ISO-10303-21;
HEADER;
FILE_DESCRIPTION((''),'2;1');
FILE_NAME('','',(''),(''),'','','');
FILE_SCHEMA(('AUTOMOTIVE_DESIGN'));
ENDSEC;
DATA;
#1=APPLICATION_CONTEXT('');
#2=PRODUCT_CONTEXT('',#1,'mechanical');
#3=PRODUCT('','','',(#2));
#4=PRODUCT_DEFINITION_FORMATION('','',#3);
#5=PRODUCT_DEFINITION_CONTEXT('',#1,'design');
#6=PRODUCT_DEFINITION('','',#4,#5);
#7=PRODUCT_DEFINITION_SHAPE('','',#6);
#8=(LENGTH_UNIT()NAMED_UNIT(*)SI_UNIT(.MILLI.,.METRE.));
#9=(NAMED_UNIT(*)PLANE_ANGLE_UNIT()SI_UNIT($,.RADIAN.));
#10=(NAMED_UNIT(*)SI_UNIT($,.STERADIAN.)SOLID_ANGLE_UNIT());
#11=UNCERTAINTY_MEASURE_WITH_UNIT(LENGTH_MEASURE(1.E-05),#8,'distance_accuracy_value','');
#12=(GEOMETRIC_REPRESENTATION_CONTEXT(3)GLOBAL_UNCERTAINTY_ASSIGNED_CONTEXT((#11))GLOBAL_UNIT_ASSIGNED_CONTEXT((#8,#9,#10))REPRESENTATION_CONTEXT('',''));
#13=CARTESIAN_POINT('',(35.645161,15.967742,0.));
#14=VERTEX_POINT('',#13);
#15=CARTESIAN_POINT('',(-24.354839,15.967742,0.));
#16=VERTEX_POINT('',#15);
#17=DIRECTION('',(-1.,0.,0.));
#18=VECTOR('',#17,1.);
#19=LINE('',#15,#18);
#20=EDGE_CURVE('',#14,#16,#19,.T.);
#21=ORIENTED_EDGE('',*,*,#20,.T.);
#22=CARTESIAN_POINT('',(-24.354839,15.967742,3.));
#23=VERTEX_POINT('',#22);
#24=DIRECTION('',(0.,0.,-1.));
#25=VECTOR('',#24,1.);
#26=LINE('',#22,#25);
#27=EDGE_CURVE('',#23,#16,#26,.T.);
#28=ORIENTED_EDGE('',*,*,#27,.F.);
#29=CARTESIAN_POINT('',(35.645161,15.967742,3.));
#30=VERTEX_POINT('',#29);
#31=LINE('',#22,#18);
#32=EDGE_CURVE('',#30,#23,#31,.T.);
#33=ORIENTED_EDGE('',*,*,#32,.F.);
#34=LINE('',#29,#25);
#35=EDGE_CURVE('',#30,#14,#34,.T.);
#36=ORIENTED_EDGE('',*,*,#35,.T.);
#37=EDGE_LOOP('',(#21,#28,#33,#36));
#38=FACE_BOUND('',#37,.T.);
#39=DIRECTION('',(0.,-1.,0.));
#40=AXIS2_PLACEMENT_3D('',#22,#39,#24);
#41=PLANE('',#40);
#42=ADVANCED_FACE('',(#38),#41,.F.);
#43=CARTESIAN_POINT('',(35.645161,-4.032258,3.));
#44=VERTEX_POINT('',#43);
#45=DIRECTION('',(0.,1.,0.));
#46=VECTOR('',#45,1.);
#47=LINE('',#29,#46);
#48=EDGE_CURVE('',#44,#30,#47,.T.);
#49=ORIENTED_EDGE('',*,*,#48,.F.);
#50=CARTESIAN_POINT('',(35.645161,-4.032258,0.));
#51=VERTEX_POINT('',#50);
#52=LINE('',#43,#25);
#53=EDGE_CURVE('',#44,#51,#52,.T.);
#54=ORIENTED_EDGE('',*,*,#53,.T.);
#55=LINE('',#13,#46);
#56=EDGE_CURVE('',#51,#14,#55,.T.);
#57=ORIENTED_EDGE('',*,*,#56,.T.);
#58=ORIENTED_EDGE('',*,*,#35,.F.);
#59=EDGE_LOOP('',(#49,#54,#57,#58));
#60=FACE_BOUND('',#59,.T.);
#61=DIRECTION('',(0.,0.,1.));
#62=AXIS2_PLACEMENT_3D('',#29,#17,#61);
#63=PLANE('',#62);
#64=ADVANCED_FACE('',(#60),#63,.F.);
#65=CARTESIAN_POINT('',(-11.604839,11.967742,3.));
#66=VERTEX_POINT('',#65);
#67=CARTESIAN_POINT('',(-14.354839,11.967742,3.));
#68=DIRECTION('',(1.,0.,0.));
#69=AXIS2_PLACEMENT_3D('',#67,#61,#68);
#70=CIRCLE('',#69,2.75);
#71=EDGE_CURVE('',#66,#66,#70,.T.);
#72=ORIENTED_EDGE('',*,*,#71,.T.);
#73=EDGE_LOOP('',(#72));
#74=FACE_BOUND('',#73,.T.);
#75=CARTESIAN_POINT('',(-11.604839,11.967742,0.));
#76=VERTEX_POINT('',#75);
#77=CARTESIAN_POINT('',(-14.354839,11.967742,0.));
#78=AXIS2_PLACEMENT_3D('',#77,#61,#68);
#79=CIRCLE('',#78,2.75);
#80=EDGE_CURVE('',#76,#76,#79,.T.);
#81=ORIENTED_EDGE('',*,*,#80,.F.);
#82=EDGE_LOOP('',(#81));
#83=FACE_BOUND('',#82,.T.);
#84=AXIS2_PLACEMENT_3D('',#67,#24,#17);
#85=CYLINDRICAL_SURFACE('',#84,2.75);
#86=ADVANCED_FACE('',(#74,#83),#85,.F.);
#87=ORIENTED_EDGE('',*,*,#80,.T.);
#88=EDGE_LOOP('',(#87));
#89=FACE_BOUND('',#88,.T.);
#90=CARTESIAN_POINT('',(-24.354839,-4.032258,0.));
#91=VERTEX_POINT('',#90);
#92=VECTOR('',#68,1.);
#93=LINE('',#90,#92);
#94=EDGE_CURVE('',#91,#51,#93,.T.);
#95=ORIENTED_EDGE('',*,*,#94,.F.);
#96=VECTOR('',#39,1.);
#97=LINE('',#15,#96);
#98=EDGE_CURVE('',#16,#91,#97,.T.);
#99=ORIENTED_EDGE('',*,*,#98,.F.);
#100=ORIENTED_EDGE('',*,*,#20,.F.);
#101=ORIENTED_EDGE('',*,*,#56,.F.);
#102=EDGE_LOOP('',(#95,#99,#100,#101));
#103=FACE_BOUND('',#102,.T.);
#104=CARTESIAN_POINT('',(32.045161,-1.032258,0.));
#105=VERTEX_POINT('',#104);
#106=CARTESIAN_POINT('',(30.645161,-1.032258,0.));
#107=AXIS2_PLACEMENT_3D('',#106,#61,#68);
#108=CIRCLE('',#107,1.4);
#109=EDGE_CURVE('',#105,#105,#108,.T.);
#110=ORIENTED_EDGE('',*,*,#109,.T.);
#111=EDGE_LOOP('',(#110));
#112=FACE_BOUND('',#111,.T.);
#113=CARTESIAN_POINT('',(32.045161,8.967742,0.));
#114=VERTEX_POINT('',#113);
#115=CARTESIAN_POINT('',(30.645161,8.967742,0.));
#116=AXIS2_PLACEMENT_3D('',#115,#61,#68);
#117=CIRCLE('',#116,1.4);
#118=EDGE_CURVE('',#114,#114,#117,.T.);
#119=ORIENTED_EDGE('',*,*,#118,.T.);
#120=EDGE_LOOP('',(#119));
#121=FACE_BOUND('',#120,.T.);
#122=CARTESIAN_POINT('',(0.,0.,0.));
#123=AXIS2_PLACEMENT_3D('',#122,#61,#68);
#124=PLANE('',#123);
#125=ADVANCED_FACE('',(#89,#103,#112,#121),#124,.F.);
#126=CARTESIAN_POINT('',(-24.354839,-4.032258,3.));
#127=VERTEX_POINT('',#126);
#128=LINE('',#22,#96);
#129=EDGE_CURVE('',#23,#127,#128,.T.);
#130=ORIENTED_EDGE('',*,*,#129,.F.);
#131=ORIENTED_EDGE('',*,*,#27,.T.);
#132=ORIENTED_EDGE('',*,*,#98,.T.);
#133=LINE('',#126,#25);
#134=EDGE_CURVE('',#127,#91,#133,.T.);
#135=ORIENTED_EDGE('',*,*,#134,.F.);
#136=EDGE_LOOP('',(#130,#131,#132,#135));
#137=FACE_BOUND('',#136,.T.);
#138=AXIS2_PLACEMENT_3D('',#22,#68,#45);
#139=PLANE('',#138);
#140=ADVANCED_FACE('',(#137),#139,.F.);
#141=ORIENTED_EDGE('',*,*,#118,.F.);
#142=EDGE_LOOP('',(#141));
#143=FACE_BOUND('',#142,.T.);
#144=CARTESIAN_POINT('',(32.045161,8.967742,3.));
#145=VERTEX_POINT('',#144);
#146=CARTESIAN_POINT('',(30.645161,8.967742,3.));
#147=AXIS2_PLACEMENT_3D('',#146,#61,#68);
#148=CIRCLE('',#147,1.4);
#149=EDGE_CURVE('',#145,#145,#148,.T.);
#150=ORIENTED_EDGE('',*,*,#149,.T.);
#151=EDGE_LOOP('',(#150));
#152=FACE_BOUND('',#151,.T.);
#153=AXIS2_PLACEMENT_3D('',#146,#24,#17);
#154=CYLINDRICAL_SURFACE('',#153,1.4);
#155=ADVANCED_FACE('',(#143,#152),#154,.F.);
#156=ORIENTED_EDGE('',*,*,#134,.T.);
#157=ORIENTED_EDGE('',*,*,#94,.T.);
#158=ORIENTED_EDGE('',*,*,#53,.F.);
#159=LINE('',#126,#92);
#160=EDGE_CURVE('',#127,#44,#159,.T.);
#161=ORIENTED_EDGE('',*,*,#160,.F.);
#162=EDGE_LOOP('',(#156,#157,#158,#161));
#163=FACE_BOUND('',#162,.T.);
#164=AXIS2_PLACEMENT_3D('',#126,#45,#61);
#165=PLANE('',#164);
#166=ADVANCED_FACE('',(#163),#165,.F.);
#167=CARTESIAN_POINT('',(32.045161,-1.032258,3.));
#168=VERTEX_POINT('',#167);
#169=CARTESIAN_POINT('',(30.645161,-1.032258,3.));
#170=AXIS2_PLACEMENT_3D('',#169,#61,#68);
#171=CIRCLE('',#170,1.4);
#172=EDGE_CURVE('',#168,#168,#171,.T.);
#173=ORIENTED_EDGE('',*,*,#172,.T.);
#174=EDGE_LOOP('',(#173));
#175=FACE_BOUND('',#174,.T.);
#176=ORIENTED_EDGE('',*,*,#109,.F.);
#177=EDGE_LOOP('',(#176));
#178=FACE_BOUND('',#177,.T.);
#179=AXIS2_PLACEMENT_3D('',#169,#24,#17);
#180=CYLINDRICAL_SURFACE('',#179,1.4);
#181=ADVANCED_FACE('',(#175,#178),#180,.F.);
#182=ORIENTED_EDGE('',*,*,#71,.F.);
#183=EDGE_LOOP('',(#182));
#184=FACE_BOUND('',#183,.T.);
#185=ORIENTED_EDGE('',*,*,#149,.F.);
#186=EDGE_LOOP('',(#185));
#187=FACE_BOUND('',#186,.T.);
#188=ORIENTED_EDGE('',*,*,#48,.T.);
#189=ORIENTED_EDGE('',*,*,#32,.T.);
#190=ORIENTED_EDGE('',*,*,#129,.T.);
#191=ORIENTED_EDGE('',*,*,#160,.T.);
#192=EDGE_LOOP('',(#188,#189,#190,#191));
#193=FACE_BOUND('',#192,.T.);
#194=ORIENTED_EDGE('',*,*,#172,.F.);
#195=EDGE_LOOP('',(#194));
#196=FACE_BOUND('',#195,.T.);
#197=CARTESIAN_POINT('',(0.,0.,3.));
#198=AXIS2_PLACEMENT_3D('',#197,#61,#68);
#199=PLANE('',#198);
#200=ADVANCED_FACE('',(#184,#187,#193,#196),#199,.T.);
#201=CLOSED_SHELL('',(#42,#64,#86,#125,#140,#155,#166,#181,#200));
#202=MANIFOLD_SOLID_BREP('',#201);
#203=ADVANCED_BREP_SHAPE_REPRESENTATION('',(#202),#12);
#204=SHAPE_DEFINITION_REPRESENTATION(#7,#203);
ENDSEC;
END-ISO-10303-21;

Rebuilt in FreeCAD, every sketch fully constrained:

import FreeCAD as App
import Part
import Sketcher
from FreeCAD import Vector
Q = App.Units.Quantity

doc = App.newDocument("Part")
body = doc.addObject("PartDesign::Body", "Body")

# Sketch on XY plane
sketch1 = body.newObject("Sketcher::SketchObject", "Sketch")
sketch1.AttachmentSupport = (doc.getObject("XY_Plane"), [""])
sketch1.MapMode = "FlatFace"
sketch1.addGeometry([
    Part.LineSegment(Vector(-24.4, 16, 0), Vector(-24.4, -4, 0)),  # 0
    Part.LineSegment(Vector(-24.4, -4, 0), Vector(35.6, -4, 0)),  # 1
    Part.LineSegment(Vector(35.6, -4, 0), Vector(35.6, 16, 0)),  # 2
    Part.LineSegment(Vector(35.6, 16, 0), Vector(-24.4, 16, 0)),  # 3
    Part.Circle(Vector(30.6, -1, 0), Vector(0, 0, 1), 1.4),  # 4
    Part.Circle(Vector(-14.4, 12, 0), Vector(0, 0, 1), 2.8),  # 5
    Part.Circle(Vector(30.6, 9, 0), Vector(0, 0, 1), 1.4),  # 6
], False)
sketch1.addConstraint([
    Sketcher.Constraint("Coincident", 0, 2, 1, 1),
    Sketcher.Constraint("Coincident", 1, 2, 2, 1),
    Sketcher.Constraint("Coincident", 2, 2, 3, 1),
    Sketcher.Constraint("Coincident", 3, 2, 0, 1),
    Sketcher.Constraint("Vertical", 0),
    Sketcher.Constraint("Horizontal", 1),
    Sketcher.Constraint("Vertical", 2),
    Sketcher.Constraint("Horizontal", 3),
    Sketcher.Constraint("Equal", 4, 6),
    Sketcher.Constraint("Vertical", 4, 3, 6, 3),
    Sketcher.Constraint("Diameter", 4, Q("2.8 mm")),
    Sketcher.Constraint("Diameter", 5, Q("5.5 mm")),
    Sketcher.Constraint("DistanceX", 1, 1, 1, 2, Q("60 mm")),
    Sketcher.Constraint("DistanceY", 0, 2, 0, 1, Q("20 mm")),
    Sketcher.Constraint("DistanceX", 5, 3, 4, 3, Q("45 mm")),
    Sketcher.Constraint("DistanceY", 4, 3, 5, 3, Q("13 mm")),
    Sketcher.Constraint("DistanceY", 4, 3, 6, 3, Q("10 mm")),
    Sketcher.Constraint("DistanceX", 0, 2, 5, 3, Q("10 mm")),
    Sketcher.Constraint("DistanceY", 0, 2, 5, 3, Q("16 mm")),
    Sketcher.Constraint("DistanceX", -1, 1, 4, 3, Q("30.645161 mm")),
    Sketcher.Constraint("DistanceY", 4, 3, -1, 1, Q("1.032258 mm")),
])
pad1 = body.newObject("PartDesign::Pad", "Pad")
pad1.Profile = sketch1
pad1.Length = 3

doc.recompute()
